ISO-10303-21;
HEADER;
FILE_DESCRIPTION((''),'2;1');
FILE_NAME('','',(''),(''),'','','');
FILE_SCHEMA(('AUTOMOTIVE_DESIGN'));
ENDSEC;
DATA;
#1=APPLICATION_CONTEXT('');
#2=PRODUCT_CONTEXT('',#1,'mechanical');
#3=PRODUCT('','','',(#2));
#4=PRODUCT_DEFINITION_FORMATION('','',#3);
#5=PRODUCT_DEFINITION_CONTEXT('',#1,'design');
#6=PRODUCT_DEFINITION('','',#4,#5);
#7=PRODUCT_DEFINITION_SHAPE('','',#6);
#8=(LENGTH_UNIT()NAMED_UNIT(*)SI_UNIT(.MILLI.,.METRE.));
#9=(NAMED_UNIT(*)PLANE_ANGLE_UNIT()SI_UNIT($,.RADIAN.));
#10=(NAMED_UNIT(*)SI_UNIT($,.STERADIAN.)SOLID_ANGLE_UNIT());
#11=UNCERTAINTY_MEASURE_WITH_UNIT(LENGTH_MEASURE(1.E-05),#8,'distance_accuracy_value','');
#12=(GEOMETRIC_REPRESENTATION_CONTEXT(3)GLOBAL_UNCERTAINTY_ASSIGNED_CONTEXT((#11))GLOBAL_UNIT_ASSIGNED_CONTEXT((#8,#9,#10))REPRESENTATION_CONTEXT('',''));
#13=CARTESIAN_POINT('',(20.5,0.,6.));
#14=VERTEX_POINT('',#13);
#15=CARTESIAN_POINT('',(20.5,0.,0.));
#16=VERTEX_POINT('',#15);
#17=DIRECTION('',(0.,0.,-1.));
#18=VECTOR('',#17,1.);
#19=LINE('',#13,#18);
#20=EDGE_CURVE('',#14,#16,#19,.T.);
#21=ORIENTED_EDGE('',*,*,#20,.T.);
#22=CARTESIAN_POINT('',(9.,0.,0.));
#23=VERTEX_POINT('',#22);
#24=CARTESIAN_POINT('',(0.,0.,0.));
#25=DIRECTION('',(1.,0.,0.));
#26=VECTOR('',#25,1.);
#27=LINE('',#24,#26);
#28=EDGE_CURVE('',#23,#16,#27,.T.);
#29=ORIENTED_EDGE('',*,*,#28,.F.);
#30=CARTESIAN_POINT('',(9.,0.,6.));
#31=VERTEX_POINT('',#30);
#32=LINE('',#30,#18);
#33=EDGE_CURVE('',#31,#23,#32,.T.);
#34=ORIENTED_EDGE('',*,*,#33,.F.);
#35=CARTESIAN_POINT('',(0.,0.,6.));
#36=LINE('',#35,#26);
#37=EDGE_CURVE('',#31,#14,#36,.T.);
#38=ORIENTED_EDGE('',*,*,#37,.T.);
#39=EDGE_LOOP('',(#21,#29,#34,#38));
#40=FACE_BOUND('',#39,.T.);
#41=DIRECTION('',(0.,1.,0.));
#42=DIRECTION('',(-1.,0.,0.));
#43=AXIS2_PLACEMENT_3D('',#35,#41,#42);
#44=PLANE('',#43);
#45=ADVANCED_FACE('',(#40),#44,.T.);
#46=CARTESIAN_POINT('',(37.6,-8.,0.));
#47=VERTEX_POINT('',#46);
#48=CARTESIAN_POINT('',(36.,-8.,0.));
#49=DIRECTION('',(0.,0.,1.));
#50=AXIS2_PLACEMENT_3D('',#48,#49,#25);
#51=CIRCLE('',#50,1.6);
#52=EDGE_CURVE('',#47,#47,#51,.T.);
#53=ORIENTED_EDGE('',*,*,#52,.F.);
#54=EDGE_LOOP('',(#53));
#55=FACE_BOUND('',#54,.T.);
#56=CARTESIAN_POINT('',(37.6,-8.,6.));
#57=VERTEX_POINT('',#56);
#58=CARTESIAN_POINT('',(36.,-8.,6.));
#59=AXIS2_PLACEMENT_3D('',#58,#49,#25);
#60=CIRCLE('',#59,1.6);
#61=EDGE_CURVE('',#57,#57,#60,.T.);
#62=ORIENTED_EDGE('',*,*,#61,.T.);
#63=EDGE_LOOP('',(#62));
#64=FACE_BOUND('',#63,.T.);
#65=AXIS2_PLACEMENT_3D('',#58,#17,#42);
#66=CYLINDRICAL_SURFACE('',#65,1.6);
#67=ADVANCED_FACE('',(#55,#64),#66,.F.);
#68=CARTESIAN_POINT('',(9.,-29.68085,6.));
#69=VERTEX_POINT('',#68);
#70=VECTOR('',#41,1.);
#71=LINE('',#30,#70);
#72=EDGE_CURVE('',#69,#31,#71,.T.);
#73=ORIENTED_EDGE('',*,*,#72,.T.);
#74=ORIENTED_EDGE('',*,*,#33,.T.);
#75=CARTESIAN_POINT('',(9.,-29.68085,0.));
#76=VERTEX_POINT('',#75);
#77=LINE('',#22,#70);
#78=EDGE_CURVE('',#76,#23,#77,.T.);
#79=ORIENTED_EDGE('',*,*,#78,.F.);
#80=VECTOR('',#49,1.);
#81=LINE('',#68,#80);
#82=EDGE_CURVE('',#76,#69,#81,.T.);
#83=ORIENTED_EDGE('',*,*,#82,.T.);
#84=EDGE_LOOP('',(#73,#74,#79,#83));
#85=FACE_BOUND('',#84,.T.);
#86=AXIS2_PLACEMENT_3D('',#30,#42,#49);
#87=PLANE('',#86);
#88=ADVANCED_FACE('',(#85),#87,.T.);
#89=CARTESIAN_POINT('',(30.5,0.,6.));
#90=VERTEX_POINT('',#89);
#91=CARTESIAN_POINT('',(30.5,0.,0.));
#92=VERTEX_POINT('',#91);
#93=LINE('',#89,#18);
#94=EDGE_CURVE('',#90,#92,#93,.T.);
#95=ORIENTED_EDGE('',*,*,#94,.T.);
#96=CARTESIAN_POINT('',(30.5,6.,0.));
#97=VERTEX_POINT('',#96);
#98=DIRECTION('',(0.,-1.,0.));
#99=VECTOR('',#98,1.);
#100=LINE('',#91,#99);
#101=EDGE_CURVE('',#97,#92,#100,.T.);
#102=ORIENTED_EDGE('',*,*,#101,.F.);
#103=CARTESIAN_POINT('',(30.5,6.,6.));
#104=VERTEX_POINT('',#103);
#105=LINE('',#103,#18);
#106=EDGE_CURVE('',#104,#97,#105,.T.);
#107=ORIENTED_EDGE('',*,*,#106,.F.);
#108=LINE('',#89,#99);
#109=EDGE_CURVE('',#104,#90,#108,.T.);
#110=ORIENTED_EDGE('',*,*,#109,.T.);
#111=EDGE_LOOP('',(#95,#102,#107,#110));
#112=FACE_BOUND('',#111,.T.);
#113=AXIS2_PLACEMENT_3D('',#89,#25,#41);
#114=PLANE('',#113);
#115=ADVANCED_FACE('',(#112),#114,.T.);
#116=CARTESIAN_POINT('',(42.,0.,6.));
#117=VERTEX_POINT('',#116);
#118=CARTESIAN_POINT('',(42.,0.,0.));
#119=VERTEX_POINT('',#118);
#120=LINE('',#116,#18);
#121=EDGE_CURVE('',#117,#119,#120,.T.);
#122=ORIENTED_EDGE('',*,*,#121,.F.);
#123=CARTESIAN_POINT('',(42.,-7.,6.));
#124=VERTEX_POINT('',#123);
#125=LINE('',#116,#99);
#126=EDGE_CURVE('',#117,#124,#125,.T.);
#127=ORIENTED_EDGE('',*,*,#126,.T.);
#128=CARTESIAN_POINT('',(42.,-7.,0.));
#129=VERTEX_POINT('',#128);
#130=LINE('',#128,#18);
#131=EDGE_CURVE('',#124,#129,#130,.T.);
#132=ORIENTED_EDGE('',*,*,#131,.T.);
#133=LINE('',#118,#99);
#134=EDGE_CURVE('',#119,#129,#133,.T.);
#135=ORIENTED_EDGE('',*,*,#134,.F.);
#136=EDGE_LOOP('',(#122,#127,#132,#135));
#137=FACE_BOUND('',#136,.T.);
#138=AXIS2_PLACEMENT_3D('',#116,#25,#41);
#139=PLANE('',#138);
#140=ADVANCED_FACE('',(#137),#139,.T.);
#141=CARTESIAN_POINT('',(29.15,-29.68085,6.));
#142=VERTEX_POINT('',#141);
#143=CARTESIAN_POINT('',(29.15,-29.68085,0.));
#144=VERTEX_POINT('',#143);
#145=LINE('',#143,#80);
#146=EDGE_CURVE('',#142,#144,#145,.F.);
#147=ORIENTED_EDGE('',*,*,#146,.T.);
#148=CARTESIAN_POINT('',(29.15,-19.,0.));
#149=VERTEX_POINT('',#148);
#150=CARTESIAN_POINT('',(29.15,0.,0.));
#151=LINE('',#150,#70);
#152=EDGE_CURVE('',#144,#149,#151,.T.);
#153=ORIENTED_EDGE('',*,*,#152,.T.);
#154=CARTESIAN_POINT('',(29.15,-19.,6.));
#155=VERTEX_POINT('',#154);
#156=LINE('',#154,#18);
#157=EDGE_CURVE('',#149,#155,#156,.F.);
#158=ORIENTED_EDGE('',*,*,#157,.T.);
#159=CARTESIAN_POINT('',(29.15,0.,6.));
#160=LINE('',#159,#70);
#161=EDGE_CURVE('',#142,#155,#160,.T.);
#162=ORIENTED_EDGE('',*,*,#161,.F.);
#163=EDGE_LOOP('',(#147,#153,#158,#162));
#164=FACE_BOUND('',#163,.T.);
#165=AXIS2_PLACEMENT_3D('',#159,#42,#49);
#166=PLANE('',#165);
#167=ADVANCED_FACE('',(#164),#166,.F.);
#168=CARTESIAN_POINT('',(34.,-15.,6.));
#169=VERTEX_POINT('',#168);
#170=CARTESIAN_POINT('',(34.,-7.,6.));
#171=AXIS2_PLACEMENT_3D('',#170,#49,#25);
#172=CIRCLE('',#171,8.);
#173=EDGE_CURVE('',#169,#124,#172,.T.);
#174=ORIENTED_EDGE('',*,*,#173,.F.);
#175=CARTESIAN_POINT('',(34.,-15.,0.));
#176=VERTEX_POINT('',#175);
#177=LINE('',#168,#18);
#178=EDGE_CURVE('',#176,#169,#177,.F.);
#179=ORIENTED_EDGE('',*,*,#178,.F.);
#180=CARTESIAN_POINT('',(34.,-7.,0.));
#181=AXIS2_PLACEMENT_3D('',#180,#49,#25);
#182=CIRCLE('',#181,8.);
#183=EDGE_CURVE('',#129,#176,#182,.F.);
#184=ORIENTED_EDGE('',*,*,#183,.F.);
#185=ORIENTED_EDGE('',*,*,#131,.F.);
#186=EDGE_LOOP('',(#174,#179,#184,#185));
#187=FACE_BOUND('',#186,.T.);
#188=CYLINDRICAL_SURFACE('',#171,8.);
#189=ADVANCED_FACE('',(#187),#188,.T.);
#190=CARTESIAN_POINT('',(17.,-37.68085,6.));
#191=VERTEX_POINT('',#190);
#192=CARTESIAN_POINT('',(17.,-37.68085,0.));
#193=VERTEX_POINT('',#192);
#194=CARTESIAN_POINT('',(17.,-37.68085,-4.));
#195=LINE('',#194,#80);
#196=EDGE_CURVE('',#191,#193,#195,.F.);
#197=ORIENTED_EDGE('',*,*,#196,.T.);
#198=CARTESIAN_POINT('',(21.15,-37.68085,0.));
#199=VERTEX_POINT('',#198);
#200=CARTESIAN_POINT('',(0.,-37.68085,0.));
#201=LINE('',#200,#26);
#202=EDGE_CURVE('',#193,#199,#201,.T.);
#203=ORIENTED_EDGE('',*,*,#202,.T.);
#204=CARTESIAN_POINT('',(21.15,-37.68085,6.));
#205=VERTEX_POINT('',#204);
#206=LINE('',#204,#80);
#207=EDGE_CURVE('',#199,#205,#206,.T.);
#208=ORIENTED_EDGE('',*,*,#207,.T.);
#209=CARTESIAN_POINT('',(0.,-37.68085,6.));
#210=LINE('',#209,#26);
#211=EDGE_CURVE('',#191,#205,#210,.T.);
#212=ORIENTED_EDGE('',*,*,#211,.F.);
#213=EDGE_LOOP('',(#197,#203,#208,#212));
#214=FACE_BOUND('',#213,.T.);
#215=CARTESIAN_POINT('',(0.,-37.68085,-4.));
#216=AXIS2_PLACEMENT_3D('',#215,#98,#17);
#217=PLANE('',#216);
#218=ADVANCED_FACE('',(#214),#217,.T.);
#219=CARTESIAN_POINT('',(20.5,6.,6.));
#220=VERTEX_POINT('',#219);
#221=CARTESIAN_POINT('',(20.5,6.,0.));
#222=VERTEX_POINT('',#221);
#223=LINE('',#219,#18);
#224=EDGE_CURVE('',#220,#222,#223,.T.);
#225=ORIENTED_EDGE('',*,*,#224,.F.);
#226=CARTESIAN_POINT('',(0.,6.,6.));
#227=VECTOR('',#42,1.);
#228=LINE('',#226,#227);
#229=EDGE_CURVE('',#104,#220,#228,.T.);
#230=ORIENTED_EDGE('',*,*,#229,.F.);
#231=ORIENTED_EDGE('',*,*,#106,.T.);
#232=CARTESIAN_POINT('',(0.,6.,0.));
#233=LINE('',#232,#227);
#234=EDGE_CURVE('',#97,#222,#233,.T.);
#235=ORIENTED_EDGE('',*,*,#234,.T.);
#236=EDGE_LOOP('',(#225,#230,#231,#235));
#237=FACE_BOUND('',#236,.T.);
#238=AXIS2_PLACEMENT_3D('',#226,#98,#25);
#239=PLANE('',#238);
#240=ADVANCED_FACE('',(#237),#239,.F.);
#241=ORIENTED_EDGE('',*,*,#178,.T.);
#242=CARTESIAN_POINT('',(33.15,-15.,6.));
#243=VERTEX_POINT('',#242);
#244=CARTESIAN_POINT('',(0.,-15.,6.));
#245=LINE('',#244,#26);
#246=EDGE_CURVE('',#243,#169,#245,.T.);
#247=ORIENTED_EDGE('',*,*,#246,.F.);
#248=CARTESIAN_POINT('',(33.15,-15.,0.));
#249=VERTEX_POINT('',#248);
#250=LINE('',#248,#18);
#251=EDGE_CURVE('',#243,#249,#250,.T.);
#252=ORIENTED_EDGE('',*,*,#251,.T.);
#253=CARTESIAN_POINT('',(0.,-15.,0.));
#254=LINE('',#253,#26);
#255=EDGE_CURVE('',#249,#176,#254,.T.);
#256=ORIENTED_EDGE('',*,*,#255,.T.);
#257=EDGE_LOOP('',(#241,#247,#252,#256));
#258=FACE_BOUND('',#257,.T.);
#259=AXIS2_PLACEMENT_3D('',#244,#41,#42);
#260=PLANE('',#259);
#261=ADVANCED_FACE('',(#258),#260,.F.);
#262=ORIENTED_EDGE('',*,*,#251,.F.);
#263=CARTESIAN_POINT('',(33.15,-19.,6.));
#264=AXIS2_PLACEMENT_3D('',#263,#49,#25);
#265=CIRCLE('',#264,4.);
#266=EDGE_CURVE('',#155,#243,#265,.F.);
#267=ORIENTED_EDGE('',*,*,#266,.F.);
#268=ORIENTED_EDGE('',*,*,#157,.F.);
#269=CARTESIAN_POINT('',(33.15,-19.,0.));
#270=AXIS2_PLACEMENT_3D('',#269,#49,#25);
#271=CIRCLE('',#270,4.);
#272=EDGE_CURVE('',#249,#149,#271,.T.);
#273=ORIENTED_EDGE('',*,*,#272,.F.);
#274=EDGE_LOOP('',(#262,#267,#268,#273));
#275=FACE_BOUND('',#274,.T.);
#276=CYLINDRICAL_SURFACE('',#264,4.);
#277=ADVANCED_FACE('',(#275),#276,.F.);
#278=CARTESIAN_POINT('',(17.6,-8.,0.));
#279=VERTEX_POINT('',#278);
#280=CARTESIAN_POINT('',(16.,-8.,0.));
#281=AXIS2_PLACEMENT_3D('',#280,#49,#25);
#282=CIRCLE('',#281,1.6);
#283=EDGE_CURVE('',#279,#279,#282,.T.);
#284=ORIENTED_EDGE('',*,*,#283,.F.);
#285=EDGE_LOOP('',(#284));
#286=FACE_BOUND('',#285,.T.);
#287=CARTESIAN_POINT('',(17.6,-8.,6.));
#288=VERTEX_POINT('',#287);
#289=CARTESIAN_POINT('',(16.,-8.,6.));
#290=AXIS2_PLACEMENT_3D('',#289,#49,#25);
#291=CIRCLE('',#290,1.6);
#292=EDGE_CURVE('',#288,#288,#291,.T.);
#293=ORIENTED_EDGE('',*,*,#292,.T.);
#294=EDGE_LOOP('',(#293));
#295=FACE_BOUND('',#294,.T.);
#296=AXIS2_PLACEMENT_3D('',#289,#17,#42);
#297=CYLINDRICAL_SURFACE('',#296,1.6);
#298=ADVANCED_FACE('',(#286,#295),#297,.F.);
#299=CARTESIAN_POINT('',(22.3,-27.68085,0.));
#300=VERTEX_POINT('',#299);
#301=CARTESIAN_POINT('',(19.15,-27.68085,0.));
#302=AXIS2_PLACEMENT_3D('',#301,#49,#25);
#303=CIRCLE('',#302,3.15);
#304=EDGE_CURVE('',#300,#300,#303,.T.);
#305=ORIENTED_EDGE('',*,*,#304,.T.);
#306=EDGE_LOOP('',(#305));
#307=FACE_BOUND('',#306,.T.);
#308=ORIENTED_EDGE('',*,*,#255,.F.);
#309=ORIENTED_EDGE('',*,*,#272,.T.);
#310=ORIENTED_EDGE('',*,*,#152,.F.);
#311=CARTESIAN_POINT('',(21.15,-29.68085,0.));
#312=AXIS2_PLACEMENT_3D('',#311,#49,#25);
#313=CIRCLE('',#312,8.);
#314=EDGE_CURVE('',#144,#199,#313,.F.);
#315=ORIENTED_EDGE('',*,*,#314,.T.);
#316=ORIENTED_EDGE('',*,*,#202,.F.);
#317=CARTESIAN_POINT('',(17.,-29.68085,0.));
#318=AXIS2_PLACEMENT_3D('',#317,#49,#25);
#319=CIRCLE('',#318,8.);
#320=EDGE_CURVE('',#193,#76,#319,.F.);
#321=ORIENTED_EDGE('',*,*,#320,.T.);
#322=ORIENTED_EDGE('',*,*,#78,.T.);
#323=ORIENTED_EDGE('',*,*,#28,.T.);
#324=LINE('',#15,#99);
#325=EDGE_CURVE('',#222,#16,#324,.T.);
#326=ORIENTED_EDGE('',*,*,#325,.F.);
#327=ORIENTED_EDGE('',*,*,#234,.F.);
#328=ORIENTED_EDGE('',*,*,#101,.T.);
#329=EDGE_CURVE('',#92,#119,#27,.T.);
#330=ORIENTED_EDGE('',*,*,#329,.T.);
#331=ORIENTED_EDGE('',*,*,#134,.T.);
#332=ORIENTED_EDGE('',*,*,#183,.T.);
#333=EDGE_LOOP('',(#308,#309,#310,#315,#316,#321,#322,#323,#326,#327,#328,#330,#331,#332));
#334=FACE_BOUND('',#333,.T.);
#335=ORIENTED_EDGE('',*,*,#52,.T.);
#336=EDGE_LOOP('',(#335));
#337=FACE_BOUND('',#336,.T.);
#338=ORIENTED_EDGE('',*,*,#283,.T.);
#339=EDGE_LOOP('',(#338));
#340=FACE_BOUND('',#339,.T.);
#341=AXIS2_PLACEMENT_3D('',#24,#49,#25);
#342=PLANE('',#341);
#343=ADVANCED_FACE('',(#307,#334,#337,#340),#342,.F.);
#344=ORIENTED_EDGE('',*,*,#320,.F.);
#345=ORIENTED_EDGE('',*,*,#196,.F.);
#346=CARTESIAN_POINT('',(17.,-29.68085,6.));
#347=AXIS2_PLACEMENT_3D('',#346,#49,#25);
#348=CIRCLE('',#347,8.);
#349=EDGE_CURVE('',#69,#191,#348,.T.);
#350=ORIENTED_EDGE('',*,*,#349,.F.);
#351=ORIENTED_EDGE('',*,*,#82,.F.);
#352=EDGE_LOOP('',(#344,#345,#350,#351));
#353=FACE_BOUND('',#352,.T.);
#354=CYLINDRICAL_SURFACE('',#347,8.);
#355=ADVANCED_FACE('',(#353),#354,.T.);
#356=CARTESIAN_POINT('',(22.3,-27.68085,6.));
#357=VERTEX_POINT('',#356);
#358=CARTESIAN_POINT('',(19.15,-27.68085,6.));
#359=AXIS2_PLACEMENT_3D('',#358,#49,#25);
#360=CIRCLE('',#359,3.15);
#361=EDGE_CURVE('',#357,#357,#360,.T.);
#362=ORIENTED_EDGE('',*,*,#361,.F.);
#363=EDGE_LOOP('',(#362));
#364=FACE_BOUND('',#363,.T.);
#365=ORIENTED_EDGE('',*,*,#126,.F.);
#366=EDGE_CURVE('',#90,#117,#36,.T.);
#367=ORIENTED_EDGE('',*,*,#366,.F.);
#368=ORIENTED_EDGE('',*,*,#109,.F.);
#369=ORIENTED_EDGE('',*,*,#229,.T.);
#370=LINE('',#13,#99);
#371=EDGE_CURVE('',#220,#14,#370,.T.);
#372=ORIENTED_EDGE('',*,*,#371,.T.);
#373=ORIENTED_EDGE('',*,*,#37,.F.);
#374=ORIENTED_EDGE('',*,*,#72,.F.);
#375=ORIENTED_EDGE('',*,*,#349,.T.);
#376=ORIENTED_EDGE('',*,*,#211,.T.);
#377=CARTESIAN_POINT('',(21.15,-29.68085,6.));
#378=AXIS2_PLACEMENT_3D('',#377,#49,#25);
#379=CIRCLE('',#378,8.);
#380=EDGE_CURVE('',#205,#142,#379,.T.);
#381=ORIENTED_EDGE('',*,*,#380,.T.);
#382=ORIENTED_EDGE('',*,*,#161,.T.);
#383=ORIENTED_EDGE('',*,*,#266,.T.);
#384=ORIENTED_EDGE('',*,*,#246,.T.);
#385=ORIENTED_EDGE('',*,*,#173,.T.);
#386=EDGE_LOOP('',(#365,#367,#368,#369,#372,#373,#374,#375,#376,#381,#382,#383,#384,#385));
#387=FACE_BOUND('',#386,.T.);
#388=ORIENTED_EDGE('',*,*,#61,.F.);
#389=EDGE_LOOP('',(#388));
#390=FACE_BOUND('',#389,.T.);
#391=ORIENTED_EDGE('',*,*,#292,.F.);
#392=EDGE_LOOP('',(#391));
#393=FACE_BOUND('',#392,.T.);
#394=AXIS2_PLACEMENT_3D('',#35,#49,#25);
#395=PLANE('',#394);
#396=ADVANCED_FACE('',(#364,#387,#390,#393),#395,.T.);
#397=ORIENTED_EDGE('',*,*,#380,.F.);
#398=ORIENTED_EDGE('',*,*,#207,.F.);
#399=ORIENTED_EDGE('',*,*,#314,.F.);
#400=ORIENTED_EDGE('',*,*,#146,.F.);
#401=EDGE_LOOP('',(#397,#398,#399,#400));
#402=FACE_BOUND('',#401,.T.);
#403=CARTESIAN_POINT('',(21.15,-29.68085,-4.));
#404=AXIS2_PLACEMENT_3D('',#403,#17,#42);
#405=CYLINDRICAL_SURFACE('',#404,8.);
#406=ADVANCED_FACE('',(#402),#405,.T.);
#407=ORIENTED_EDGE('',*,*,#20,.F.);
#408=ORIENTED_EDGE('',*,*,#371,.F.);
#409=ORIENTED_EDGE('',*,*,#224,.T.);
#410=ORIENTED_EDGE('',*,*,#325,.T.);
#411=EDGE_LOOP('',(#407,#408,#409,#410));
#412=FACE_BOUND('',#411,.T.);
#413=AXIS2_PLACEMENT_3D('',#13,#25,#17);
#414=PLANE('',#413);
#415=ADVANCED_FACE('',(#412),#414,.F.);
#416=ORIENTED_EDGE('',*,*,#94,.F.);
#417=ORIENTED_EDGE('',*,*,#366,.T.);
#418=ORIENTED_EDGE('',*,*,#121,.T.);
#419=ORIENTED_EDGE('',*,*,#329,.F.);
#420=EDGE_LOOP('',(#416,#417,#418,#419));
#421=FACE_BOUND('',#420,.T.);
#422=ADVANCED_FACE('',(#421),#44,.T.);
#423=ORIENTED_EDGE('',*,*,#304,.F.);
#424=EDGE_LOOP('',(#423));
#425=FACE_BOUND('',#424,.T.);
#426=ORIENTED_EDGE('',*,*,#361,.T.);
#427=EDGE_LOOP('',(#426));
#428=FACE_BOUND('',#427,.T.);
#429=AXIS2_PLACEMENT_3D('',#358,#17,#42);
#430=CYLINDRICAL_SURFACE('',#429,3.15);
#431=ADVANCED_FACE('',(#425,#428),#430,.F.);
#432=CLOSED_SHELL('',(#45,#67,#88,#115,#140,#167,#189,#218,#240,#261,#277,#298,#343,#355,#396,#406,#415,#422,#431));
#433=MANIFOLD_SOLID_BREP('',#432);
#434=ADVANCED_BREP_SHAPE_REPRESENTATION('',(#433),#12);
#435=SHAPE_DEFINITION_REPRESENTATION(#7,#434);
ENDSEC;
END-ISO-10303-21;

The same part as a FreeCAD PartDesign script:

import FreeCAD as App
import Part
import Sketcher
from FreeCAD import Vector
Q = App.Units.Quantity


def edges_at(feature, points):
    """Names of the edges that pass closest to the given points."""
    edges = feature.Shape.Edges
    near = lambda p: min(range(len(edges)), key=lambda i: edges[i].distToShape(Part.Vertex(*p))[0])
    return sorted({f"Edge{near(p) + 1}" for p in points})


def add_polygon(sketch, points):
    """Adds a closed chain of lines whose ends are joined by coincident constraints."""
    first, n = sketch.GeometryCount, len(points)
    for a, b in zip(points, points[1:] + points[:1]):
        sketch.addGeometry(Part.LineSegment(App.Vector(*a, 0), App.Vector(*b, 0)), False)
    for i in range(n):
        sketch.addConstraint(Sketcher.Constraint("Coincident", first + i, 2, first + (i + 1) % n, 1))

doc = App.newDocument("Part")
body = doc.addObject("PartDesign::Body", "Body")

# Sketch on XY plane
sketch1 = doc.addObject("Sketcher::SketchObject", "Sketch")
body.addObject(sketch1)
sketch1.AttachmentSupport = (doc.XY_Plane, [""])
sketch1.MapMode = "FlatFace"
add_polygon(sketch1, [(20.5, 0), (9, 0), (9, -19), (0, -19), (0, -29), (6, -29), (6, -39), (0, -39), (0, -45), (29.1, -45), (29.1, -15), (42, -15), (42, 0), (30.5, 0), (30.5, 6), (20.5, 6)])  # lines 0-15
sketch1.addGeometry(Part.Circle(Vector(19.1, -27.7, 0), Vector(0, 0, 1), 3.1), False)  # 16
sketch1.addGeometry(Part.Circle(Vector(16, -8, 0), Vector(0, 0, 1), 1.6), False)  # 17
sketch1.addGeometry(Part.Circle(Vector(36, -8, 0), Vector(0, 0, 1), 1.6), False)  # 18
sketch1.addConstraint([
    Sketcher.Constraint("Horizontal", 0),
    Sketcher.Constraint("Vertical", 1),
    Sketcher.Constraint("Horizontal", 2),
    Sketcher.Constraint("Vertical", 3),
    Sketcher.Constraint("Horizontal", 4),
    Sketcher.Constraint("Vertical", 5),
    Sketcher.Constraint("Horizontal", 6),
    Sketcher.Constraint("Vertical", 7),
    Sketcher.Constraint("Horizontal", 8),
    Sketcher.Constraint("Vertical", 9),
    Sketcher.Constraint("Horizontal", 10),
    Sketcher.Constraint("Vertical", 11),
    Sketcher.Constraint("Horizontal", 12),
    Sketcher.Constraint("Vertical", 13),
    Sketcher.Constraint("Horizontal", 14),
    Sketcher.Constraint("Vertical", 15),
    Sketcher.Constraint("Equal", 17, 18),
    Sketcher.Constraint("PointOnObject", 0, 2, -1),
    Sketcher.Constraint("PointOnObject", 2, 2, -2),
    Sketcher.Constraint("PointOnObject", 6, 2, -2),
    Sketcher.Constraint("PointOnObject", 11, 2, -1),
    Sketcher.Constraint("Horizontal", 17, 3, 18, 3),
    Sketcher.Constraint("Equal", 0, 12),
    Sketcher.Constraint("Equal", 14, 3),
    Sketcher.Constraint("Equal", 3, 5),
    Sketcher.Constraint("Equal", 6, 7),
    Sketcher.Constraint("Equal", 7, 13),
    Sketcher.Constraint("Diameter", 16, Q("6.3 mm")),
    Sketcher.Constraint("Diameter", 17, Q("3.2 mm")),
    Sketcher.Constraint("DistanceX", 2, 2, 2, 1, Q("9 mm")),
    Sketcher.Constraint("DistanceX", 4, 1, 4, 2, Q("6 mm")),
    Sketcher.Constraint("DistanceX", 14, 2, 14, 1, Q("10 mm")),
    Sketcher.Constraint("DistanceY", 1, 2, 1, 1, Q("19 mm")),
    Sketcher.Constraint("DistanceY", 9, 1, 9, 2, Q("30 mm")),
    Sketcher.Constraint("DistanceX", 0, 2, 0, 1, Q("11.5 mm")),
    Sketcher.Constraint("DistanceX", -1, 1, 17, 3, Q("16 mm")),
    Sketcher.Constraint("DistanceY", 17, 3, -1, 1, Q("8 mm")),
    Sketcher.Constraint("DistanceX", -1, 1, 18, 3, Q("36 mm")),
    Sketcher.Constraint("DistanceX", 16, 3, 8, 2, Q("10 mm")),
    Sketcher.Constraint("DistanceX", 8, 1, 8, 2, Q("29.15 mm")),
    Sketcher.Constraint("DistanceY", 16, 3, -1, 1, Q("27.68085 mm")),
])
pad1 = doc.addObject("PartDesign::Pad", "Pad")
body.addObject(pad1)
pad1.Profile = sketch1
pad1.Length = 6
doc.recompute()

fillet = doc.addObject("PartDesign::Fillet", "Fillet")
body.addObject(fillet)
fillet.Base = (pad1, edges_at(pad1, [(29.15, -15, 3)]))
fillet.Radius = 4

# Sketch on XY plane
sketch2 = doc.addObject("Sketcher::SketchObject", "Sketch001")
body.addObject(sketch2)
sketch2.AttachmentSupport = (doc.XY_Plane, [""])
sketch2.MapMode = "FlatFace"
sketch2.AttachmentOffset = App.Placement(Vector(0, 0, 6), App.Rotation())
add_polygon(sketch2, [(9, -19), (0, -19), (0, -29), (6, -29), (6, -39), (0, -39), (0, -45), (9, -45), (29, -45), (29, -38), (9, -38)])  # lines 0-10
sketch2.addConstraint([
    Sketcher.Constraint("Horizontal", 0),
    Sketcher.Constraint("Vertical", 1),
    Sketcher.Constraint("Horizontal", 2),
    Sketcher.Constraint("Vertical", 3),
    Sketcher.Constraint("Horizontal", 4),
    Sketcher.Constraint("Vertical", 5),
    Sketcher.Constraint("Horizontal", 6),
    Sketcher.Constraint("Horizontal", 7),
    Sketcher.Constraint("Vertical", 8),
    Sketcher.Constraint("Horizontal", 9),
    Sketcher.Constraint("Vertical", 10),
    Sketcher.Constraint("PointOnObject", 0, 2, -2),
    Sketcher.Constraint("PointOnObject", 4, 2, -2),
    Sketcher.Constraint("Vertical", 6, 2, 9, 2),
    Sketcher.Constraint("Equal", 1, 3),
    Sketcher.Constraint("Equal", 4, 5),
    Sketcher.Constraint("DistanceX", 0, 2, 0, 1, Q("9 mm")),
    Sketcher.Constraint("DistanceX", 2, 1, 2, 2, Q("6 mm")),
    Sketcher.Constraint("DistanceY", 1, 2, 1, 1, Q("10 mm")),
    Sketcher.Constraint("DistanceY", 0, 2, -1, 1, Q("19 mm")),
    Sketcher.Constraint("DistanceX", 7, 1, 7, 2, Q("20.15 mm")),
    Sketcher.Constraint("DistanceY", 8, 1, 8, 2, Q("7.31915 mm")),
])
pocket1 = doc.addObject("PartDesign::Pocket", "Pocket")
body.addObject(pocket1)
pocket1.Profile = sketch2
pocket1.Length = 10
doc.recompute()

fillet2 = doc.addObject("PartDesign::Fillet", "Fillet001")
body.addObject(fillet2)
fillet2.Base = (pocket1, edges_at(pocket1, [(42, -15, 3), (9, -37.681, 3), (29.15, -37.681, 3)]))
fillet2.Radius = 8

doc.recompute()
